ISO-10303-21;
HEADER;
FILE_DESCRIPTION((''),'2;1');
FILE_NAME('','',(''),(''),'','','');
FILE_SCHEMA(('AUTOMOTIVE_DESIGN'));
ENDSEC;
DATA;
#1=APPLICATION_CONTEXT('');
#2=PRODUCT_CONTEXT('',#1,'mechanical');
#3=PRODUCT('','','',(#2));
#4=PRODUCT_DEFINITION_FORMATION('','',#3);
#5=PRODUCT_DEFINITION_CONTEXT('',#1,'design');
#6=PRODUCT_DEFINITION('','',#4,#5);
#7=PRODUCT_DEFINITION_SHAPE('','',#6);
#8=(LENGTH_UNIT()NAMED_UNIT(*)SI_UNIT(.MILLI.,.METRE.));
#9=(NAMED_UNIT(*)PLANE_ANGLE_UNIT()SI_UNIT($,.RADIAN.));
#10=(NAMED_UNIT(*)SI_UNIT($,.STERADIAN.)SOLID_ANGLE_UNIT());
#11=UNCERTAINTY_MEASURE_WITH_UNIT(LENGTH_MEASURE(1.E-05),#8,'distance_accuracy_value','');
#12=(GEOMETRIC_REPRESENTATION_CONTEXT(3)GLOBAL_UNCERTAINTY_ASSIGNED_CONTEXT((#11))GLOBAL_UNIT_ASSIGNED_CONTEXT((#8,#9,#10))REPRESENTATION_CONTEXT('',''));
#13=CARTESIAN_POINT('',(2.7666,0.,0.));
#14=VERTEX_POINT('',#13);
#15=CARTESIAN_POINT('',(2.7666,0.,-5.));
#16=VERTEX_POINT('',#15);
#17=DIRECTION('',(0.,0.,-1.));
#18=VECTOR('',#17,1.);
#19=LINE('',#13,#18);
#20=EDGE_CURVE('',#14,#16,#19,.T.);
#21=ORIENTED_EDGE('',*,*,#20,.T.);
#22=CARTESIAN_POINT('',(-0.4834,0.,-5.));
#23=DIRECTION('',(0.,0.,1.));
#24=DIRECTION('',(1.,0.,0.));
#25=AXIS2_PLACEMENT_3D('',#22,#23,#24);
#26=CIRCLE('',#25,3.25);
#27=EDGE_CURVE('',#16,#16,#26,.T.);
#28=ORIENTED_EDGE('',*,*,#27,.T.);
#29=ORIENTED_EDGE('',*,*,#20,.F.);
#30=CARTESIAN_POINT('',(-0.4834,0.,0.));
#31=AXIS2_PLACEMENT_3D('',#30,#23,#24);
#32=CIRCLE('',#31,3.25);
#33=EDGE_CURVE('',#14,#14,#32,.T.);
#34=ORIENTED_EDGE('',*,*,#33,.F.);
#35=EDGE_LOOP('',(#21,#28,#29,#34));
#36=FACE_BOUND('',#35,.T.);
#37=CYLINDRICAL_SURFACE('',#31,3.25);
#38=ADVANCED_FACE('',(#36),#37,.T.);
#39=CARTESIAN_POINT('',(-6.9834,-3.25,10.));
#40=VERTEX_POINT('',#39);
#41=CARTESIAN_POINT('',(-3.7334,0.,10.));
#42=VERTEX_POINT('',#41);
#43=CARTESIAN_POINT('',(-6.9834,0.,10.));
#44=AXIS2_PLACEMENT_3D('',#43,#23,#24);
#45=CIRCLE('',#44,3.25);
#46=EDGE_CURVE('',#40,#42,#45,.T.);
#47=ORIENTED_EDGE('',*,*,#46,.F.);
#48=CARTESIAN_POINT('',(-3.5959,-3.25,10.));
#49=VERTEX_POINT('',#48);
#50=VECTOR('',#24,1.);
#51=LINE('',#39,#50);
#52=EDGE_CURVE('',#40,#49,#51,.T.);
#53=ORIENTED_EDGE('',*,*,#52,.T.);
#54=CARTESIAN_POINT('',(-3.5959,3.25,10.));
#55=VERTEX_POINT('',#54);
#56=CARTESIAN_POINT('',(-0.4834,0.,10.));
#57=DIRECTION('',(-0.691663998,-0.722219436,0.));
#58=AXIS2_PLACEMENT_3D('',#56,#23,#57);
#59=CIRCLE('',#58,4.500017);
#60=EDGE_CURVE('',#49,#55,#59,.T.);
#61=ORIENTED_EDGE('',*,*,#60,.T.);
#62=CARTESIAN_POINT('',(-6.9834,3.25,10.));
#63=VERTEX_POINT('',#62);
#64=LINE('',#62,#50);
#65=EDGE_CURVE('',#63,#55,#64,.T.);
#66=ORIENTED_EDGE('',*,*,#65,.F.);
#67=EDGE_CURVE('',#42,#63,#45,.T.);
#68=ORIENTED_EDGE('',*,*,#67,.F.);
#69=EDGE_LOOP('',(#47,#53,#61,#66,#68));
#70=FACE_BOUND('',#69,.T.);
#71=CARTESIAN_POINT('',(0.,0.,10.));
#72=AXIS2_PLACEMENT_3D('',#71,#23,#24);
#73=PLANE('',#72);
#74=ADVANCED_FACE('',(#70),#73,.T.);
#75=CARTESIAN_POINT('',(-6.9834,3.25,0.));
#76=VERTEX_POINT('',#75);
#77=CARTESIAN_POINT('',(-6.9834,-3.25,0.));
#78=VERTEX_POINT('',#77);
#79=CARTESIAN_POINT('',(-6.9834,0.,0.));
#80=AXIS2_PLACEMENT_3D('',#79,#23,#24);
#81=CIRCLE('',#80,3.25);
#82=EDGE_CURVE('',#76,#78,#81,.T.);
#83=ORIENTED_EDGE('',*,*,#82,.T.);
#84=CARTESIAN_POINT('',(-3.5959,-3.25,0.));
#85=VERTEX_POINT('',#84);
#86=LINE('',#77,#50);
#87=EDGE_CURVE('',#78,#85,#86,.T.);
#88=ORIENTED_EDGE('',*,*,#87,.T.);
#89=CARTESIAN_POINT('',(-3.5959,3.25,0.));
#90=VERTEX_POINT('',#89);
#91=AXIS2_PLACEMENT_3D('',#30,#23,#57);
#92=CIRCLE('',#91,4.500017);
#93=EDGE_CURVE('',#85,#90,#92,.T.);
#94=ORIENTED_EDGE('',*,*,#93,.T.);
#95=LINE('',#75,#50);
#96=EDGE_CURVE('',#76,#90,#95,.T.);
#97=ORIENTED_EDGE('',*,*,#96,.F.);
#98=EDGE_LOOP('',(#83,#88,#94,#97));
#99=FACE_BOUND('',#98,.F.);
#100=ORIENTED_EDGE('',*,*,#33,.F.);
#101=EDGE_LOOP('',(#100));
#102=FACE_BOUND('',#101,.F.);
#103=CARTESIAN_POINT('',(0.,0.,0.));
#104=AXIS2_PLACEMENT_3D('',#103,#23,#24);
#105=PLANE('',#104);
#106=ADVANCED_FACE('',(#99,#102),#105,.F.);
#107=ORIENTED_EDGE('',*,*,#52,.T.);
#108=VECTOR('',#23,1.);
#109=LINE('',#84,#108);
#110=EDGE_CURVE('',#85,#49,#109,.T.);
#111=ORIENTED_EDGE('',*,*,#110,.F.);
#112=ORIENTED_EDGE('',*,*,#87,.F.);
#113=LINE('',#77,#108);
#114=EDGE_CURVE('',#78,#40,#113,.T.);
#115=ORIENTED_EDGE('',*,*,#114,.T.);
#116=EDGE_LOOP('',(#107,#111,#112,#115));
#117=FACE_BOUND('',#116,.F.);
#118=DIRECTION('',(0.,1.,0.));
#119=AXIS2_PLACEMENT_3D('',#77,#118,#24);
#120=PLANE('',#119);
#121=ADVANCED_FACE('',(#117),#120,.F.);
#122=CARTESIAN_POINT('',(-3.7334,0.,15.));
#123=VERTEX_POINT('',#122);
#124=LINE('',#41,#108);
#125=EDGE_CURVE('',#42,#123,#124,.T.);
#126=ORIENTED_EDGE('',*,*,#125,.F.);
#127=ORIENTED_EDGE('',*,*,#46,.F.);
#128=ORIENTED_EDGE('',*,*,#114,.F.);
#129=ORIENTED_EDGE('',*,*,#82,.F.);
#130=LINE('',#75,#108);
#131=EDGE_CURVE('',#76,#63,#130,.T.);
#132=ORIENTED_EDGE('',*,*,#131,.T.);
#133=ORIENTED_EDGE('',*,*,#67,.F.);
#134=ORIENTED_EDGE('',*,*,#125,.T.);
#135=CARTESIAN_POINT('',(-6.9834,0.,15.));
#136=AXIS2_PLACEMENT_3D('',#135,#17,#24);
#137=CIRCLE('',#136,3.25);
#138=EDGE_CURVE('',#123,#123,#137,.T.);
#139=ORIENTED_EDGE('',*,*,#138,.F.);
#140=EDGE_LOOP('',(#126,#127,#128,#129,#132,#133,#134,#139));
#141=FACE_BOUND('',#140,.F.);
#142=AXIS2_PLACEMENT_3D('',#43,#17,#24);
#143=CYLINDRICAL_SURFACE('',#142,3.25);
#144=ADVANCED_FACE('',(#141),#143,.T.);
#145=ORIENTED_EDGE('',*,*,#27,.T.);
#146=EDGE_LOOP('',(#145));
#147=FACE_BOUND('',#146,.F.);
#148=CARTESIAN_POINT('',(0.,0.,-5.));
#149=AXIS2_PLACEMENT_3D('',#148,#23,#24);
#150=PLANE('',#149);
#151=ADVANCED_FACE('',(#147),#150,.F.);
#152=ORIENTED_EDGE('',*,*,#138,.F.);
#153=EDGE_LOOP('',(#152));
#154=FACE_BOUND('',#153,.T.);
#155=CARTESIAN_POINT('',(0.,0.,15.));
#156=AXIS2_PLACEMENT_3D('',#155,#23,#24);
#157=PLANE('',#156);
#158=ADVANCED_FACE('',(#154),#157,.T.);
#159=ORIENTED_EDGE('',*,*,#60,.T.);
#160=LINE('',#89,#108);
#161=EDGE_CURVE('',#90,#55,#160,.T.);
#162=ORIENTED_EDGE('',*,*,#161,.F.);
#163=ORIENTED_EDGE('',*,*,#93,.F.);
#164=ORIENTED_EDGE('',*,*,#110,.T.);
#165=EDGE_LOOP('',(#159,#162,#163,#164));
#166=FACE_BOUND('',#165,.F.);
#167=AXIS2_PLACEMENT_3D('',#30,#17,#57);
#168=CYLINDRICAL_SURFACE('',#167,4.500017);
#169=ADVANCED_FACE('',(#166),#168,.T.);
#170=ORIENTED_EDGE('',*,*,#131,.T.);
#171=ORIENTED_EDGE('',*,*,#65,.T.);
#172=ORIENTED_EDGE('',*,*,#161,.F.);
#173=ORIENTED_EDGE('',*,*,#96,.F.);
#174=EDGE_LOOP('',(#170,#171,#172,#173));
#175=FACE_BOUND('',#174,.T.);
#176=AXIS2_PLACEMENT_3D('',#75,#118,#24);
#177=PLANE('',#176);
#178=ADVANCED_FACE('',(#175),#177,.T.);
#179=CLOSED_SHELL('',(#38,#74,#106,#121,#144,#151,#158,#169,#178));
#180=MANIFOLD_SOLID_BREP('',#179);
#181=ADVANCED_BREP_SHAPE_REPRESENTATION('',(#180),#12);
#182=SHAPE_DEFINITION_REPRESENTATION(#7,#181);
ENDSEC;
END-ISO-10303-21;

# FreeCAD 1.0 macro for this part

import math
import FreeCAD as App
import Part
import Sketcher

doc = App.newDocument("Part")
body = doc.addObject("PartDesign::Body", "Body")

# Sketch on XY plane
sketch1 = body.newObject("Sketcher::SketchObject", "Sketch")
sketch1.AttachmentSupport = (doc.getObject("XY_Plane"), [""])
sketch1.MapMode = "FlatFace"
sketch1.addGeometry([
    Part.LineSegment(App.Vector(-3.6, 3.2, 0), App.Vector(-7, 3.2, 0)),
    Part.ArcOfCircle(Part.Circle(App.Vector(-7, 0, 0), App.Vector(0, 0, 1), 3.2), math.radians(90), math.radians(270)),
    Part.LineSegment(App.Vector(-7, -3.2, 0), App.Vector(-3.6, -3.2, 0)),
    Part.ArcOfCircle(Part.Circle(App.Vector(-0.5, 0, 0), App.Vector(0, 0, 1), 4.5), math.radians(-134), math.radians(134)),
], False)
sketch1.addConstraint([
    Sketcher.Constraint("Tangent", 0, 2, 1, 1),
    Sketcher.Constraint("Tangent", 1, 2, 2, 1),
    Sketcher.Constraint("Coincident", 2, 2, 3, 1),
    Sketcher.Constraint("Coincident", 3, 2, 0, 1),
    Sketcher.Constraint("Horizontal", 0),
    Sketcher.Constraint("Horizontal", 2),
    Sketcher.Constraint("Symmetric", 2, 2, 3, 2, -1),
    Sketcher.Constraint("Radius", 3, 4.5),
    Sketcher.Constraint("Radius", 1, 3.25),
    Sketcher.Constraint("DistanceX", 1, 3, 3, 3, 6.5),
    Sketcher.Constraint("DistanceX", 2, 2, -1, 1, 3.596),
])
pad1 = body.newObject("PartDesign::Pad", "Pad")
pad1.Profile = sketch1
pad1.Length = 10

# Sketch on XY plane
sketch2 = body.newObject("Sketcher::SketchObject", "Sketch001")
sketch2.AttachmentSupport = (doc.getObject("XY_Plane"), [""])
sketch2.MapMode = "FlatFace"
sketch2.addGeometry(Part.Circle(App.Vector(-0.5, 0, 0), App.Vector(0, 0, 1), 3.2), False)
sketch2.addConstraint([
    Sketcher.Constraint("PointOnObject", 0, 3, -1),
    Sketcher.Constraint("Diameter", 0, 6.5),
    Sketcher.Constraint("DistanceX", 0, 3, -1, 1, 0.4834),
])
pad2 = body.newObject("PartDesign::Pad", "Pad001")
pad2.Profile = sketch2
pad2.Length = 5
pad2.Reversed = True

# Sketch on XY plane
sketch3 = body.newObject("Sketcher::SketchObject", "Sketch002")
sketch3.AttachmentSupport = (doc.getObject("XY_Plane"), [""])
sketch3.MapMode = "FlatFace"
sketch3.AttachmentOffset = App.Placement(App.Vector(0, 0, 10), App.Rotation())
sketch3.addGeometry(Part.Circle(App.Vector(-7, 0, 0), App.Vector(0, 0, 1), 3.2), False)
sketch3.addConstraint([
    Sketcher.Constraint("PointOnObject", 0, 3, -1),
    Sketcher.Constraint("Diameter", 0, 6.5),
    Sketcher.Constraint("DistanceX", 0, 3, -1, 1, 6.9834),
])
pad3 = body.newObject("PartDesign::Pad", "Pad002")
pad3.Profile = sketch3
pad3.Length = 5

doc.recompute()
